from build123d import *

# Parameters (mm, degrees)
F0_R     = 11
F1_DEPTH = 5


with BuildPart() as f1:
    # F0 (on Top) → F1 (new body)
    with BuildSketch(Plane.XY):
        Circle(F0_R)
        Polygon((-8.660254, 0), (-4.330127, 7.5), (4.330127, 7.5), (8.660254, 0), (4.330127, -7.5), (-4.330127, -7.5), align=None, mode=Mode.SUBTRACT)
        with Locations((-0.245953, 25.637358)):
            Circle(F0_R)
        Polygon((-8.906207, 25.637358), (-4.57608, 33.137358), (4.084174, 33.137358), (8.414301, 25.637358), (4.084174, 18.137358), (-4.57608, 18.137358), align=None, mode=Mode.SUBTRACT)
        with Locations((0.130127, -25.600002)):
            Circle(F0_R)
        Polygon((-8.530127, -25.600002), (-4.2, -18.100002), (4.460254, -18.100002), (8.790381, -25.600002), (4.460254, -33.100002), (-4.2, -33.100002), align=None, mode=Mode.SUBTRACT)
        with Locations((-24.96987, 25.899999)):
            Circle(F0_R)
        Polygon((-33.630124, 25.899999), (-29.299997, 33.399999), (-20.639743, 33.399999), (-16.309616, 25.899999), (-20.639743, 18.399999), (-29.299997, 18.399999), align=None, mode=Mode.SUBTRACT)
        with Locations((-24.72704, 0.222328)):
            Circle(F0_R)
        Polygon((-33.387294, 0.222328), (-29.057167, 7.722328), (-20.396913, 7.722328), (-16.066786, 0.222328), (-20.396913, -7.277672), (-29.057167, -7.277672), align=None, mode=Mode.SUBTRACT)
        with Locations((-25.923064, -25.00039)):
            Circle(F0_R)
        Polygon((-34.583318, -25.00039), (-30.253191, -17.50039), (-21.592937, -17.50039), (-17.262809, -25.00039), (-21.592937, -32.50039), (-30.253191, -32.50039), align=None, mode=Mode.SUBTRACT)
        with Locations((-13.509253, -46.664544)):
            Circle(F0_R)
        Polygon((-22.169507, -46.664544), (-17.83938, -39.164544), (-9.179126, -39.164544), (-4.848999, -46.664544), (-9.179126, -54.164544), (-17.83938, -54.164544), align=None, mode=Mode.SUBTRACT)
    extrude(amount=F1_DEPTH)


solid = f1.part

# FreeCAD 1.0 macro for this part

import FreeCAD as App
import Part
import Sketcher
Q = App.Units.Quantity

doc = App.newDocument("Part")
body = doc.addObject("PartDesign::Body", "Body")
body.AllowCompound = True

# Sketch on XY plane
sketch1 = body.newObject("Sketcher::SketchObject", "Sketch")
sketch1.AttachmentSupport = (doc.getObject("XY_Plane"), [""])
sketch1.MapMode = "FlatFace"
sketch1.addGeometry(Part.Circle(App.Vector(0, 0, 0), App.Vector(0, 0, 1), 11), False)
sketch1.addGeometry(Part.LineSegment(App.Vector(-4, -8, 0), App.Vector(-9, 0, 0)), False)
sketch1.addGeometry(Part.LineSegment(App.Vector(-9, 0, 0), App.Vector(-4, 8, 0)), False)
sketch1.addGeometry(Part.LineSegment(App.Vector(-4, 8, 0), App.Vector(4, 8, 0)), False)
sketch1.addGeometry(Part.LineSegment(App.Vector(4, 8, 0), App.Vector(9, 0, 0)), False)
sketch1.addGeometry(Part.LineSegment(App.Vector(9, 0, 0), App.Vector(4, -8, 0)), False)
sketch1.addGeometry(Part.LineSegment(App.Vector(4, -8, 0), App.Vector(-4, -8, 0)), False)
sketch1.addGeometry(Part.Circle(App.Vector(0, 26, 0), App.Vector(0, 0, 1), 11), False)
sketch1.addGeometry(Part.LineSegment(App.Vector(-5, 18, 0), App.Vector(-9, 26, 0)), False)
sketch1.addGeometry(Part.LineSegment(App.Vector(-9, 26, 0), App.Vector(-5, 33, 0)), False)
sketch1.addGeometry(Part.LineSegment(App.Vector(-5, 33, 0), App.Vector(4, 33, 0)), False)
sketch1.addGeometry(Part.LineSegment(App.Vector(4, 33, 0), App.Vector(8, 26, 0)), False)
sketch1.addGeometry(Part.LineSegment(App.Vector(8, 26, 0), App.Vector(4, 18, 0)), False)
sketch1.addGeometry(Part.LineSegment(App.Vector(4, 18, 0), App.Vector(-5, 18, 0)), False)
sketch1.addGeometry(Part.Circle(App.Vector(0, -26, 0), App.Vector(0, 0, 1), 11), False)
sketch1.addGeometry(Part.LineSegment(App.Vector(-4, -33, 0), App.Vector(-9, -26, 0)), False)
sketch1.addGeometry(Part.LineSegment(App.Vector(-9, -26, 0), App.Vector(-4, -18, 0)), False)
sketch1.addGeometry(Part.LineSegment(App.Vector(-4, -18, 0), App.Vector(4, -18, 0)), False)
sketch1.addGeometry(Part.LineSegment(App.Vector(4, -18, 0), App.Vector(9, -26, 0)), False)
sketch1.addGeometry(Part.LineSegment(App.Vector(9, -26, 0), App.Vector(4, -33, 0)), False)
sketch1.addGeometry(Part.LineSegment(App.Vector(4, -33, 0), App.Vector(-4, -33, 0)), False)
sketch1.addGeometry(Part.Circle(App.Vector(-25, 26, 0), App.Vector(0, 0, 1), 11), False)
sketch1.addGeometry(Part.LineSegment(App.Vector(-29, 18, 0), App.Vector(-34, 26, 0)), False)
sketch1.addGeometry(Part.LineSegment(App.Vector(-34, 26, 0), App.Vector(-29, 33, 0)), False)
sketch1.addGeometry(Part.LineSegment(App.Vector(-29, 33, 0), App.Vector(-21, 33, 0)), False)
sketch1.addGeometry(Part.LineSegment(App.Vector(-21, 33, 0), App.Vector(-16, 26, 0)), False)
sketch1.addGeometry(Part.LineSegment(App.Vector(-16, 26, 0), App.Vector(-21, 18, 0)), False)
sketch1.addGeometry(Part.LineSegment(App.Vector(-21, 18, 0), App.Vector(-29, 18, 0)), False)
sketch1.addGeometry(Part.Circle(App.Vector(-25, 0, 0), App.Vector(0, 0, 1), 11), False)
sketch1.addGeometry(Part.LineSegment(App.Vector(-29, -7, 0), App.Vector(-33, 0, 0)), False)
sketch1.addGeometry(Part.LineSegment(App.Vector(-33, 0, 0), App.Vector(-29, 8, 0)), False)
sketch1.addGeometry(Part.LineSegment(App.Vector(-29, 8, 0), App.Vector(-20, 8, 0)), False)
sketch1.addGeometry(Part.LineSegment(App.Vector(-20, 8, 0), App.Vector(-16, 0, 0)), False)
sketch1.addGeometry(Part.LineSegment(App.Vector(-16, 0, 0), App.Vector(-20, -7, 0)), False)
sketch1.addGeometry(Part.LineSegment(App.Vector(-20, -7, 0), App.Vector(-29, -7, 0)), False)
sketch1.addGeometry(Part.Circle(App.Vector(-26, -25, 0), App.Vector(0, 0, 1), 11), False)
sketch1.addGeometry(Part.LineSegment(App.Vector(-30, -33, 0), App.Vector(-35, -25, 0)), False)
sketch1.addGeometry(Part.LineSegment(App.Vector(-35, -25, 0), App.Vector(-30, -18, 0)), False)
sketch1.addGeometry(Part.LineSegment(App.Vector(-30, -18, 0), App.Vector(-22, -18, 0)), False)
sketch1.addGeometry(Part.LineSegment(App.Vector(-22, -18, 0), App.Vector(-17, -25, 0)), False)
sketch1.addGeometry(Part.LineSegment(App.Vector(-17, -25, 0), App.Vector(-22, -33, 0)), False)
sketch1.addGeometry(Part.LineSegment(App.Vector(-22, -33, 0), App.Vector(-30, -33, 0)), False)
sketch1.addGeometry(Part.Circle(App.Vector(-14, -47, 0), App.Vector(0, 0, 1), 11), False)
sketch1.addGeometry(Part.LineSegment(App.Vector(-18, -54, 0), App.Vector(-22, -47, 0)), False)
sketch1.addGeometry(Part.LineSegment(App.Vector(-22, -47, 0), App.Vector(-18, -39, 0)), False)
sketch1.addGeometry(Part.LineSegment(App.Vector(-18, -39, 0), App.Vector(-9, -39, 0)), False)
sketch1.addGeometry(Part.LineSegment(App.Vector(-9, -39, 0), App.Vector(-5, -47, 0)), False)
sketch1.addGeometry(Part.LineSegment(App.Vector(-5, -47, 0), App.Vector(-9, -54, 0)), False)
sketch1.addGeometry(Part.LineSegment(App.Vector(-9, -54, 0), App.Vector(-18, -54, 0)), False)
sketch1.addConstraint(Sketcher.Constraint("Coincident", 1, 2, 2, 1))
sketch1.addConstraint(Sketcher.Constraint("Coincident", 2, 2, 3, 1))
sketch1.addConstraint(Sketcher.Constraint("Coincident", 3, 2, 4, 1))
sketch1.addConstraint(Sketcher.Constraint("Coincident", 4, 2, 5, 1))
sketch1.addConstraint(Sketcher.Constraint("Coincident", 5, 2, 6, 1))
sketch1.addConstraint(Sketcher.Constraint("Coincident", 6, 2, 1, 1))
sketch1.addConstraint(Sketcher.Constraint("Coincident", 8, 2, 9, 1))
sketch1.addConstraint(Sketcher.Constraint("Coincident", 9, 2, 10, 1))
sketch1.addConstraint(Sketcher.Constraint("Coincident", 10, 2, 11, 1))
sketch1.addConstraint(Sketcher.Constraint("Coincident", 11, 2, 12, 1))
sketch1.addConstraint(Sketcher.Constraint("Coincident", 12, 2, 13, 1))
sketch1.addConstraint(Sketcher.Constraint("Coincident", 13, 2, 8, 1))
sketch1.addConstraint(Sketcher.Constraint("Coincident", 15, 2, 16, 1))
sketch1.addConstraint(Sketcher.Constraint("Coincident", 16, 2, 17, 1))
sketch1.addConstraint(Sketcher.Constraint("Coincident", 17, 2, 18, 1))
sketch1.addConstraint(Sketcher.Constraint("Coincident", 18, 2, 19, 1))
sketch1.addConstraint(Sketcher.Constraint("Coincident", 19, 2, 20, 1))
sketch1.addConstraint(Sketcher.Constraint("Coincident", 20, 2, 15, 1))
sketch1.addConstraint(Sketcher.Constraint("Coincident", 22, 2, 23, 1))
sketch1.addConstraint(Sketcher.Constraint("Coincident", 23, 2, 24, 1))
sketch1.addConstraint(Sketcher.Constraint("Coincident", 24, 2, 25, 1))
sketch1.addConstraint(Sketcher.Constraint("Coincident", 25, 2, 26, 1))
sketch1.addConstraint(Sketcher.Constraint("Coincident", 26, 2, 27, 1))
sketch1.addConstraint(Sketcher.Constraint("Coincident", 27, 2, 22, 1))
sketch1.addConstraint(Sketcher.Constraint("Coincident", 29, 2, 30, 1))
sketch1.addConstraint(Sketcher.Constraint("Coincident", 30, 2, 31, 1))
sketch1.addConstraint(Sketcher.Constraint("Coincident", 31, 2, 32, 1))
sketch1.addConstraint(Sketcher.Constraint("Coincident", 32, 2, 33, 1))
sketch1.addConstraint(Sketcher.Constraint("Coincident", 33, 2, 34, 1))
sketch1.addConstraint(Sketcher.Constraint("Coincident", 34, 2, 29, 1))
sketch1.addConstraint(Sketcher.Constraint("Coincident", 36, 2, 37, 1))
sketch1.addConstraint(Sketcher.Constraint("Coincident", 37, 2, 38, 1))
sketch1.addConstraint(Sketcher.Constraint("Coincident", 38, 2, 39, 1))
sketch1.addConstraint(Sketcher.Constraint("Coincident", 39, 2, 40, 1))
sketch1.addConstraint(Sketcher.Constraint("Coincident", 40, 2, 41, 1))
sketch1.addConstraint(Sketcher.Constraint("Coincident", 41, 2, 36, 1))
sketch1.addConstraint(Sketcher.Constraint("Coincident", 43, 2, 44, 1))
sketch1.addConstraint(Sketcher.Constraint("Coincident", 44, 2, 45, 1))
sketch1.addConstraint(Sketcher.Constraint("Coincident", 45, 2, 46, 1))
sketch1.addConstraint(Sketcher.Constraint("Coincident", 46, 2, 47, 1))
sketch1.addConstraint(Sketcher.Constraint("Coincident", 47, 2, 48, 1))
sketch1.addConstraint(Sketcher.Constraint("Coincident", 48, 2, 43, 1))
sketch1.addConstraint(Sketcher.Constraint("Horizontal", 3))
sketch1.addConstraint(Sketcher.Constraint("Horizontal", 6))
sketch1.addConstraint(Sketcher.Constraint("Horizontal", 10))
sketch1.addConstraint(Sketcher.Constraint("Horizontal", 13))
sketch1.addConstraint(Sketcher.Constraint("Horizontal", 17))
sketch1.addConstraint(Sketcher.Constraint("Horizontal", 20))
sketch1.addConstraint(Sketcher.Constraint("Horizontal", 24))
sketch1.addConstraint(Sketcher.Constraint("Horizontal", 27))
sketch1.addConstraint(Sketcher.Constraint("Horizontal", 31))
sketch1.addConstraint(Sketcher.Constraint("Horizontal", 34))
sketch1.addConstraint(Sketcher.Constraint("Horizontal", 38))
sketch1.addConstraint(Sketcher.Constraint("Horizontal", 41))
sketch1.addConstraint(Sketcher.Constraint("Horizontal", 45))
sketch1.addConstraint(Sketcher.Constraint("Horizontal", 48))
sketch1.addConstraint(Sketcher.Constraint("Coincident", 0, 3, -1, 1))
sketch1.addConstraint(Sketcher.Constraint("Equal", 0, 7))
sketch1.addConstraint(Sketcher.Constraint("Equal", 7, 14))
sketch1.addConstraint(Sketcher.Constraint("Equal", 14, 21))
sketch1.addConstraint(Sketcher.Constraint("Equal", 21, 28))
sketch1.addConstraint(Sketcher.Constraint("Equal", 28, 35))
sketch1.addConstraint(Sketcher.Constraint("Equal", 35, 42))
sketch1.addConstraint(Sketcher.Constraint("Symmetric", 1, 2, 4, 2, -1, 1))
sketch1.addConstraint(Sketcher.Constraint("Symmetric", 2, 2, 5, 2, -1, 1))
sketch1.addConstraint(Sketcher.Constraint("PointOnObject", 1, 2, -1))
sketch1.addConstraint(Sketcher.Constraint("Parallel", 1, 4))
sketch1.addConstraint(Sketcher.Constraint("Parallel", 4, 8))
sketch1.addConstraint(Sketcher.Constraint("Parallel", 5, 9))
sketch1.addConstraint(Sketcher.Constraint("Parallel", 8, 11))
sketch1.addConstraint(Sketcher.Constraint("Parallel", 9, 12))
sketch1.addConstraint(Sketcher.Constraint("Parallel", 11, 15))
sketch1.addConstraint(Sketcher.Constraint("Parallel", 12, 16))
sketch1.addConstraint(Sketcher.Constraint("Parallel", 15, 18))
sketch1.addConstraint(Sketcher.Constraint("Parallel", 16, 19))
sketch1.addConstraint(Sketcher.Constraint("Parallel", 18, 22))
sketch1.addConstraint(Sketcher.Constraint("Parallel", 19, 23))
sketch1.addConstraint(Sketcher.Constraint("Parallel", 22, 25))
sketch1.addConstraint(Sketcher.Constraint("Parallel", 23, 26))
sketch1.addConstraint(Sketcher.Constraint("Parallel", 25, 29))
sketch1.addConstraint(Sketcher.Constraint("Parallel", 26, 30))
sketch1.addConstraint(Sketcher.Constraint("Parallel", 29, 32))
sketch1.addConstraint(Sketcher.Constraint("Parallel", 30, 33))
sketch1.addConstraint(Sketcher.Constraint("Parallel", 32, 36))
sketch1.addConstraint(Sketcher.Constraint("Parallel", 33, 37))
sketch1.addConstraint(Sketcher.Constraint("Parallel", 36, 39))
sketch1.addConstraint(Sketcher.Constraint("Parallel", 37, 40))
sketch1.addConstraint(Sketcher.Constraint("Parallel", 39, 43))
sketch1.addConstraint(Sketcher.Constraint("Parallel", 40, 44))
sketch1.addConstraint(Sketcher.Constraint("Parallel", 43, 46))
sketch1.addConstraint(Sketcher.Constraint("Parallel", 44, 47))
sketch1.addConstraint(Sketcher.Constraint("Horizontal", 7, 3, 8, 2))
sketch1.addConstraint(Sketcher.Constraint("Horizontal", 8, 2, 11, 2))
sketch1.addConstraint(Sketcher.Constraint("Horizontal", 14, 3, 15, 2))
sketch1.addConstraint(Sketcher.Constraint("Horizontal", 15, 2, 18, 2))
sketch1.addConstraint(Sketcher.Constraint("Horizontal", 21, 3, 22, 2))
sketch1.addConstraint(Sketcher.Constraint("Horizontal", 22, 2, 25, 2))
sketch1.addConstraint(Sketcher.Constraint("Horizontal", 28, 3, 29, 2))
sketch1.addConstraint(Sketcher.Constraint("Horizontal", 29, 2, 32, 2))
sketch1.addConstraint(Sketcher.Constraint("Horizontal", 35, 3, 36, 2))
sketch1.addConstraint(Sketcher.Constraint("Horizontal", 36, 2, 39, 2))
sketch1.addConstraint(Sketcher.Constraint("Horizontal", 42, 3, 43, 2))
sketch1.addConstraint(Sketcher.Constraint("Horizontal", 43, 2, 46, 2))
sketch1.addConstraint(Sketcher.Constraint("Vertical", 3, 2, 5, 2))
sketch1.addConstraint(Sketcher.Constraint("Vertical", 10, 2, 12, 2))
sketch1.addConstraint(Sketcher.Constraint("Vertical", 17, 2, 19, 2))
sketch1.addConstraint(Sketcher.Constraint("Vertical", 24, 2, 26, 2))
sketch1.addConstraint(Sketcher.Constraint("Vertical", 31, 2, 33, 2))
sketch1.addConstraint(Sketcher.Constraint("Vertical", 38, 2, 40, 2))
sketch1.addConstraint(Sketcher.Constraint("Vertical", 45, 2, 47, 2))
sketch1.addConstraint(Sketcher.Constraint("Equal", 6, 10))
sketch1.addConstraint(Sketcher.Constraint("Equal", 13, 17))
sketch1.addConstraint(Sketcher.Constraint("Equal", 20, 24))
sketch1.addConstraint(Sketcher.Constraint("Equal", 27, 31))
sketch1.addConstraint(Sketcher.Constraint("Equal", 34, 38))
sketch1.addConstraint(Sketcher.Constraint("Equal", 41, 45))
sketch1.addConstraint(Sketcher.Constraint("Equal", 5, 8))
sketch1.addConstraint(Sketcher.Constraint("Equal", 12, 15))
sketch1.addConstraint(Sketcher.Constraint("Equal", 19, 22))
sketch1.addConstraint(Sketcher.Constraint("Equal", 26, 29))
sketch1.addConstraint(Sketcher.Constraint("Equal", 33, 36))
sketch1.addConstraint(Sketcher.Constraint("Equal", 40, 43))
sketch1.addConstraint(Sketcher.Constraint("Diameter", 0, 22.0))
sketch1.addConstraint(Sketcher.Constraint("Angle", 1, Q("120 deg")))
sketch1.addConstraint(Sketcher.Constraint("DistanceY", 5, 2, 3, 2, 15.0))
sketch1.addConstraint(Sketcher.Constraint("DistanceY", 14, 3, -1, 1, 25.600002))
sketch1.addConstraint(Sketcher.Constraint("DistanceY", -1, 1, 21, 3, 25.899999))
sketch1.addConstraint(Sketcher.Constraint("DistanceX", 16, 2, -1, 1, 4.2))
sketch1.addConstraint(Sketcher.Constraint("DistanceX", 15, 2, 6, 2, 4.2))
sketch1.addConstraint(Sketcher.Constraint("DistanceX", 46, 2, -1, 1, 4.848999))
sketch1.addConstraint(Sketcher.Constraint("DistanceX", -1, 1, 11, 2, 8.414301))
sketch1.addConstraint(Sketcher.Constraint("DistanceX", 1, 2, 7, 3, 8.414301))
sketch1.addConstraint(Sketcher.Constraint("DistanceX", 21, 3, -1, 1, 24.96987))
sketch1.addConstraint(Sketcher.Constraint("DistanceX", 28, 3, -1, 1, 24.72704))
sketch1.addConstraint(Sketcher.Constraint("DistanceY", 35, 3, -1, 1, 25.00039))
sketch1.addConstraint(Sketcher.Constraint("DistanceX", 37, 2, -1, 1, 30.253191))
sketch1.addConstraint(Sketcher.Constraint("DistanceX", 7, 3, 14, 3, 0.37608))
sketch1.addConstraint(Sketcher.Constraint("DistanceY", 14, 3, 7, 3, 51.23736))
sketch1.addConstraint(Sketcher.Constraint("DistanceY", 28, 3, 21, 3, 25.677671))
sketch1.addConstraint(Sketcher.Constraint("DistanceX", 35, 3, 14, 3, 26.053191))
sketch1.addConstraint(Sketcher.Constraint("DistanceX", 35, 3, 42, 3, 12.413811))
sketch1.addConstraint(Sketcher.Constraint("DistanceY", 42, 3, 14, 3, 21.064542))
sketch1.addConstraint(Sketcher.Constraint("DistanceX", 23, 2, 8, 2, 20.39379))
sketch1.addConstraint(Sketcher.Constraint("DistanceX", 29, 2, 26, 2, 12.747551))
pad1 = body.newObject("PartDesign::Pad", "Pad")
pad1.Profile = sketch1
pad1.Length = 5

doc.recompute()
